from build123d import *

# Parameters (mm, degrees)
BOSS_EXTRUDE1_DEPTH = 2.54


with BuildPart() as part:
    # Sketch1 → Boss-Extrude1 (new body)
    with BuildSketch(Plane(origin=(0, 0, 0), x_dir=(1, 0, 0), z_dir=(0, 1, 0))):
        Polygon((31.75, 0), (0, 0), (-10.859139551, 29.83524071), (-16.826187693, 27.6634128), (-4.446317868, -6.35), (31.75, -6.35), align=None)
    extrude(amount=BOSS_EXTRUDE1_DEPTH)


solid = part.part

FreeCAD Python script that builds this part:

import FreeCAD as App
import Part
import Sketcher
Q = App.Units.Quantity

doc = App.newDocument("Part")
body = doc.addObject("PartDesign::Body", "Body")

# Sketch on XZ plane
sketch1 = body.newObject("Sketcher::SketchObject", "Sketch")
sketch1.AttachmentSupport = (doc.getObject("XZ_Plane"), [""])
sketch1.MapMode = "FlatFace"
sketch1.addGeometry(Part.LineSegment(App.Vector(32, 0, 0), App.Vector(0, 0, 0)), False)
sketch1.addGeometry(Part.LineSegment(App.Vector(0, 0, 0), App.Vector(-11, -30, 0)), False)
sketch1.addGeometry(Part.LineSegment(App.Vector(-11, -30, 0), App.Vector(-17, -28, 0)), False)
sketch1.addGeometry(Part.LineSegment(App.Vector(-17, -28, 0), App.Vector(-4, 6, 0)), False)
sketch1.addGeometry(Part.LineSegment(App.Vector(-4, 6, 0), App.Vector(32, 6, 0)), False)
sketch1.addGeometry(Part.LineSegment(App.Vector(32, 6, 0), App.Vector(32, 0, 0)), False)
sketch1.addConstraint(Sketcher.Constraint("Coincident", 0, 2, 1, 1))
sketch1.addConstraint(Sketcher.Constraint("Coincident", 1, 2, 2, 1))
sketch1.addConstraint(Sketcher.Constraint("Coincident", 2, 2, 3, 1))
sketch1.addConstraint(Sketcher.Constraint("Coincident", 3, 2, 4, 1))
sketch1.addConstraint(Sketcher.Constraint("Coincident", 4, 2, 5, 1))
sketch1.addConstraint(Sketcher.Constraint("Coincident", 5, 2, 0, 1))
sketch1.addConstraint(Sketcher.Constraint("Horizontal", 0))
sketch1.addConstraint(Sketcher.Constraint("Horizontal", 4))
sketch1.addConstraint(Sketcher.Constraint("Vertical", 5))
sketch1.addConstraint(Sketcher.Constraint("Coincident", 0, 2, -1, 1))
sketch1.addConstraint(Sketcher.Constraint("Perpendicular", 1, 2))
sketch1.addConstraint(Sketcher.Constraint("Perpendicular", 2, 3))
sketch1.addConstraint(Sketcher.Constraint("Angle", 1, Q("-110 deg")))
sketch1.addConstraint(Sketcher.Constraint("DistanceX", 0, 2, 0, 1, Q("1.25 in")))
sketch1.addConstraint(Sketcher.Constraint("DistanceY", 5, 2, 5, 1, Q("0.25 in")))
sketch1.addConstraint(Sketcher.Constraint("Distance", 1, Q("1.25 in")))
sketch1.addConstraint(Sketcher.Constraint("Distance", 2, Q("0.25 in")))
pad1 = body.newObject("PartDesign::Pad", "Pad")
pad1.Profile = sketch1
pad1.Length = Q("0.1 in")
pad1.Reversed = True

doc.recompute()
